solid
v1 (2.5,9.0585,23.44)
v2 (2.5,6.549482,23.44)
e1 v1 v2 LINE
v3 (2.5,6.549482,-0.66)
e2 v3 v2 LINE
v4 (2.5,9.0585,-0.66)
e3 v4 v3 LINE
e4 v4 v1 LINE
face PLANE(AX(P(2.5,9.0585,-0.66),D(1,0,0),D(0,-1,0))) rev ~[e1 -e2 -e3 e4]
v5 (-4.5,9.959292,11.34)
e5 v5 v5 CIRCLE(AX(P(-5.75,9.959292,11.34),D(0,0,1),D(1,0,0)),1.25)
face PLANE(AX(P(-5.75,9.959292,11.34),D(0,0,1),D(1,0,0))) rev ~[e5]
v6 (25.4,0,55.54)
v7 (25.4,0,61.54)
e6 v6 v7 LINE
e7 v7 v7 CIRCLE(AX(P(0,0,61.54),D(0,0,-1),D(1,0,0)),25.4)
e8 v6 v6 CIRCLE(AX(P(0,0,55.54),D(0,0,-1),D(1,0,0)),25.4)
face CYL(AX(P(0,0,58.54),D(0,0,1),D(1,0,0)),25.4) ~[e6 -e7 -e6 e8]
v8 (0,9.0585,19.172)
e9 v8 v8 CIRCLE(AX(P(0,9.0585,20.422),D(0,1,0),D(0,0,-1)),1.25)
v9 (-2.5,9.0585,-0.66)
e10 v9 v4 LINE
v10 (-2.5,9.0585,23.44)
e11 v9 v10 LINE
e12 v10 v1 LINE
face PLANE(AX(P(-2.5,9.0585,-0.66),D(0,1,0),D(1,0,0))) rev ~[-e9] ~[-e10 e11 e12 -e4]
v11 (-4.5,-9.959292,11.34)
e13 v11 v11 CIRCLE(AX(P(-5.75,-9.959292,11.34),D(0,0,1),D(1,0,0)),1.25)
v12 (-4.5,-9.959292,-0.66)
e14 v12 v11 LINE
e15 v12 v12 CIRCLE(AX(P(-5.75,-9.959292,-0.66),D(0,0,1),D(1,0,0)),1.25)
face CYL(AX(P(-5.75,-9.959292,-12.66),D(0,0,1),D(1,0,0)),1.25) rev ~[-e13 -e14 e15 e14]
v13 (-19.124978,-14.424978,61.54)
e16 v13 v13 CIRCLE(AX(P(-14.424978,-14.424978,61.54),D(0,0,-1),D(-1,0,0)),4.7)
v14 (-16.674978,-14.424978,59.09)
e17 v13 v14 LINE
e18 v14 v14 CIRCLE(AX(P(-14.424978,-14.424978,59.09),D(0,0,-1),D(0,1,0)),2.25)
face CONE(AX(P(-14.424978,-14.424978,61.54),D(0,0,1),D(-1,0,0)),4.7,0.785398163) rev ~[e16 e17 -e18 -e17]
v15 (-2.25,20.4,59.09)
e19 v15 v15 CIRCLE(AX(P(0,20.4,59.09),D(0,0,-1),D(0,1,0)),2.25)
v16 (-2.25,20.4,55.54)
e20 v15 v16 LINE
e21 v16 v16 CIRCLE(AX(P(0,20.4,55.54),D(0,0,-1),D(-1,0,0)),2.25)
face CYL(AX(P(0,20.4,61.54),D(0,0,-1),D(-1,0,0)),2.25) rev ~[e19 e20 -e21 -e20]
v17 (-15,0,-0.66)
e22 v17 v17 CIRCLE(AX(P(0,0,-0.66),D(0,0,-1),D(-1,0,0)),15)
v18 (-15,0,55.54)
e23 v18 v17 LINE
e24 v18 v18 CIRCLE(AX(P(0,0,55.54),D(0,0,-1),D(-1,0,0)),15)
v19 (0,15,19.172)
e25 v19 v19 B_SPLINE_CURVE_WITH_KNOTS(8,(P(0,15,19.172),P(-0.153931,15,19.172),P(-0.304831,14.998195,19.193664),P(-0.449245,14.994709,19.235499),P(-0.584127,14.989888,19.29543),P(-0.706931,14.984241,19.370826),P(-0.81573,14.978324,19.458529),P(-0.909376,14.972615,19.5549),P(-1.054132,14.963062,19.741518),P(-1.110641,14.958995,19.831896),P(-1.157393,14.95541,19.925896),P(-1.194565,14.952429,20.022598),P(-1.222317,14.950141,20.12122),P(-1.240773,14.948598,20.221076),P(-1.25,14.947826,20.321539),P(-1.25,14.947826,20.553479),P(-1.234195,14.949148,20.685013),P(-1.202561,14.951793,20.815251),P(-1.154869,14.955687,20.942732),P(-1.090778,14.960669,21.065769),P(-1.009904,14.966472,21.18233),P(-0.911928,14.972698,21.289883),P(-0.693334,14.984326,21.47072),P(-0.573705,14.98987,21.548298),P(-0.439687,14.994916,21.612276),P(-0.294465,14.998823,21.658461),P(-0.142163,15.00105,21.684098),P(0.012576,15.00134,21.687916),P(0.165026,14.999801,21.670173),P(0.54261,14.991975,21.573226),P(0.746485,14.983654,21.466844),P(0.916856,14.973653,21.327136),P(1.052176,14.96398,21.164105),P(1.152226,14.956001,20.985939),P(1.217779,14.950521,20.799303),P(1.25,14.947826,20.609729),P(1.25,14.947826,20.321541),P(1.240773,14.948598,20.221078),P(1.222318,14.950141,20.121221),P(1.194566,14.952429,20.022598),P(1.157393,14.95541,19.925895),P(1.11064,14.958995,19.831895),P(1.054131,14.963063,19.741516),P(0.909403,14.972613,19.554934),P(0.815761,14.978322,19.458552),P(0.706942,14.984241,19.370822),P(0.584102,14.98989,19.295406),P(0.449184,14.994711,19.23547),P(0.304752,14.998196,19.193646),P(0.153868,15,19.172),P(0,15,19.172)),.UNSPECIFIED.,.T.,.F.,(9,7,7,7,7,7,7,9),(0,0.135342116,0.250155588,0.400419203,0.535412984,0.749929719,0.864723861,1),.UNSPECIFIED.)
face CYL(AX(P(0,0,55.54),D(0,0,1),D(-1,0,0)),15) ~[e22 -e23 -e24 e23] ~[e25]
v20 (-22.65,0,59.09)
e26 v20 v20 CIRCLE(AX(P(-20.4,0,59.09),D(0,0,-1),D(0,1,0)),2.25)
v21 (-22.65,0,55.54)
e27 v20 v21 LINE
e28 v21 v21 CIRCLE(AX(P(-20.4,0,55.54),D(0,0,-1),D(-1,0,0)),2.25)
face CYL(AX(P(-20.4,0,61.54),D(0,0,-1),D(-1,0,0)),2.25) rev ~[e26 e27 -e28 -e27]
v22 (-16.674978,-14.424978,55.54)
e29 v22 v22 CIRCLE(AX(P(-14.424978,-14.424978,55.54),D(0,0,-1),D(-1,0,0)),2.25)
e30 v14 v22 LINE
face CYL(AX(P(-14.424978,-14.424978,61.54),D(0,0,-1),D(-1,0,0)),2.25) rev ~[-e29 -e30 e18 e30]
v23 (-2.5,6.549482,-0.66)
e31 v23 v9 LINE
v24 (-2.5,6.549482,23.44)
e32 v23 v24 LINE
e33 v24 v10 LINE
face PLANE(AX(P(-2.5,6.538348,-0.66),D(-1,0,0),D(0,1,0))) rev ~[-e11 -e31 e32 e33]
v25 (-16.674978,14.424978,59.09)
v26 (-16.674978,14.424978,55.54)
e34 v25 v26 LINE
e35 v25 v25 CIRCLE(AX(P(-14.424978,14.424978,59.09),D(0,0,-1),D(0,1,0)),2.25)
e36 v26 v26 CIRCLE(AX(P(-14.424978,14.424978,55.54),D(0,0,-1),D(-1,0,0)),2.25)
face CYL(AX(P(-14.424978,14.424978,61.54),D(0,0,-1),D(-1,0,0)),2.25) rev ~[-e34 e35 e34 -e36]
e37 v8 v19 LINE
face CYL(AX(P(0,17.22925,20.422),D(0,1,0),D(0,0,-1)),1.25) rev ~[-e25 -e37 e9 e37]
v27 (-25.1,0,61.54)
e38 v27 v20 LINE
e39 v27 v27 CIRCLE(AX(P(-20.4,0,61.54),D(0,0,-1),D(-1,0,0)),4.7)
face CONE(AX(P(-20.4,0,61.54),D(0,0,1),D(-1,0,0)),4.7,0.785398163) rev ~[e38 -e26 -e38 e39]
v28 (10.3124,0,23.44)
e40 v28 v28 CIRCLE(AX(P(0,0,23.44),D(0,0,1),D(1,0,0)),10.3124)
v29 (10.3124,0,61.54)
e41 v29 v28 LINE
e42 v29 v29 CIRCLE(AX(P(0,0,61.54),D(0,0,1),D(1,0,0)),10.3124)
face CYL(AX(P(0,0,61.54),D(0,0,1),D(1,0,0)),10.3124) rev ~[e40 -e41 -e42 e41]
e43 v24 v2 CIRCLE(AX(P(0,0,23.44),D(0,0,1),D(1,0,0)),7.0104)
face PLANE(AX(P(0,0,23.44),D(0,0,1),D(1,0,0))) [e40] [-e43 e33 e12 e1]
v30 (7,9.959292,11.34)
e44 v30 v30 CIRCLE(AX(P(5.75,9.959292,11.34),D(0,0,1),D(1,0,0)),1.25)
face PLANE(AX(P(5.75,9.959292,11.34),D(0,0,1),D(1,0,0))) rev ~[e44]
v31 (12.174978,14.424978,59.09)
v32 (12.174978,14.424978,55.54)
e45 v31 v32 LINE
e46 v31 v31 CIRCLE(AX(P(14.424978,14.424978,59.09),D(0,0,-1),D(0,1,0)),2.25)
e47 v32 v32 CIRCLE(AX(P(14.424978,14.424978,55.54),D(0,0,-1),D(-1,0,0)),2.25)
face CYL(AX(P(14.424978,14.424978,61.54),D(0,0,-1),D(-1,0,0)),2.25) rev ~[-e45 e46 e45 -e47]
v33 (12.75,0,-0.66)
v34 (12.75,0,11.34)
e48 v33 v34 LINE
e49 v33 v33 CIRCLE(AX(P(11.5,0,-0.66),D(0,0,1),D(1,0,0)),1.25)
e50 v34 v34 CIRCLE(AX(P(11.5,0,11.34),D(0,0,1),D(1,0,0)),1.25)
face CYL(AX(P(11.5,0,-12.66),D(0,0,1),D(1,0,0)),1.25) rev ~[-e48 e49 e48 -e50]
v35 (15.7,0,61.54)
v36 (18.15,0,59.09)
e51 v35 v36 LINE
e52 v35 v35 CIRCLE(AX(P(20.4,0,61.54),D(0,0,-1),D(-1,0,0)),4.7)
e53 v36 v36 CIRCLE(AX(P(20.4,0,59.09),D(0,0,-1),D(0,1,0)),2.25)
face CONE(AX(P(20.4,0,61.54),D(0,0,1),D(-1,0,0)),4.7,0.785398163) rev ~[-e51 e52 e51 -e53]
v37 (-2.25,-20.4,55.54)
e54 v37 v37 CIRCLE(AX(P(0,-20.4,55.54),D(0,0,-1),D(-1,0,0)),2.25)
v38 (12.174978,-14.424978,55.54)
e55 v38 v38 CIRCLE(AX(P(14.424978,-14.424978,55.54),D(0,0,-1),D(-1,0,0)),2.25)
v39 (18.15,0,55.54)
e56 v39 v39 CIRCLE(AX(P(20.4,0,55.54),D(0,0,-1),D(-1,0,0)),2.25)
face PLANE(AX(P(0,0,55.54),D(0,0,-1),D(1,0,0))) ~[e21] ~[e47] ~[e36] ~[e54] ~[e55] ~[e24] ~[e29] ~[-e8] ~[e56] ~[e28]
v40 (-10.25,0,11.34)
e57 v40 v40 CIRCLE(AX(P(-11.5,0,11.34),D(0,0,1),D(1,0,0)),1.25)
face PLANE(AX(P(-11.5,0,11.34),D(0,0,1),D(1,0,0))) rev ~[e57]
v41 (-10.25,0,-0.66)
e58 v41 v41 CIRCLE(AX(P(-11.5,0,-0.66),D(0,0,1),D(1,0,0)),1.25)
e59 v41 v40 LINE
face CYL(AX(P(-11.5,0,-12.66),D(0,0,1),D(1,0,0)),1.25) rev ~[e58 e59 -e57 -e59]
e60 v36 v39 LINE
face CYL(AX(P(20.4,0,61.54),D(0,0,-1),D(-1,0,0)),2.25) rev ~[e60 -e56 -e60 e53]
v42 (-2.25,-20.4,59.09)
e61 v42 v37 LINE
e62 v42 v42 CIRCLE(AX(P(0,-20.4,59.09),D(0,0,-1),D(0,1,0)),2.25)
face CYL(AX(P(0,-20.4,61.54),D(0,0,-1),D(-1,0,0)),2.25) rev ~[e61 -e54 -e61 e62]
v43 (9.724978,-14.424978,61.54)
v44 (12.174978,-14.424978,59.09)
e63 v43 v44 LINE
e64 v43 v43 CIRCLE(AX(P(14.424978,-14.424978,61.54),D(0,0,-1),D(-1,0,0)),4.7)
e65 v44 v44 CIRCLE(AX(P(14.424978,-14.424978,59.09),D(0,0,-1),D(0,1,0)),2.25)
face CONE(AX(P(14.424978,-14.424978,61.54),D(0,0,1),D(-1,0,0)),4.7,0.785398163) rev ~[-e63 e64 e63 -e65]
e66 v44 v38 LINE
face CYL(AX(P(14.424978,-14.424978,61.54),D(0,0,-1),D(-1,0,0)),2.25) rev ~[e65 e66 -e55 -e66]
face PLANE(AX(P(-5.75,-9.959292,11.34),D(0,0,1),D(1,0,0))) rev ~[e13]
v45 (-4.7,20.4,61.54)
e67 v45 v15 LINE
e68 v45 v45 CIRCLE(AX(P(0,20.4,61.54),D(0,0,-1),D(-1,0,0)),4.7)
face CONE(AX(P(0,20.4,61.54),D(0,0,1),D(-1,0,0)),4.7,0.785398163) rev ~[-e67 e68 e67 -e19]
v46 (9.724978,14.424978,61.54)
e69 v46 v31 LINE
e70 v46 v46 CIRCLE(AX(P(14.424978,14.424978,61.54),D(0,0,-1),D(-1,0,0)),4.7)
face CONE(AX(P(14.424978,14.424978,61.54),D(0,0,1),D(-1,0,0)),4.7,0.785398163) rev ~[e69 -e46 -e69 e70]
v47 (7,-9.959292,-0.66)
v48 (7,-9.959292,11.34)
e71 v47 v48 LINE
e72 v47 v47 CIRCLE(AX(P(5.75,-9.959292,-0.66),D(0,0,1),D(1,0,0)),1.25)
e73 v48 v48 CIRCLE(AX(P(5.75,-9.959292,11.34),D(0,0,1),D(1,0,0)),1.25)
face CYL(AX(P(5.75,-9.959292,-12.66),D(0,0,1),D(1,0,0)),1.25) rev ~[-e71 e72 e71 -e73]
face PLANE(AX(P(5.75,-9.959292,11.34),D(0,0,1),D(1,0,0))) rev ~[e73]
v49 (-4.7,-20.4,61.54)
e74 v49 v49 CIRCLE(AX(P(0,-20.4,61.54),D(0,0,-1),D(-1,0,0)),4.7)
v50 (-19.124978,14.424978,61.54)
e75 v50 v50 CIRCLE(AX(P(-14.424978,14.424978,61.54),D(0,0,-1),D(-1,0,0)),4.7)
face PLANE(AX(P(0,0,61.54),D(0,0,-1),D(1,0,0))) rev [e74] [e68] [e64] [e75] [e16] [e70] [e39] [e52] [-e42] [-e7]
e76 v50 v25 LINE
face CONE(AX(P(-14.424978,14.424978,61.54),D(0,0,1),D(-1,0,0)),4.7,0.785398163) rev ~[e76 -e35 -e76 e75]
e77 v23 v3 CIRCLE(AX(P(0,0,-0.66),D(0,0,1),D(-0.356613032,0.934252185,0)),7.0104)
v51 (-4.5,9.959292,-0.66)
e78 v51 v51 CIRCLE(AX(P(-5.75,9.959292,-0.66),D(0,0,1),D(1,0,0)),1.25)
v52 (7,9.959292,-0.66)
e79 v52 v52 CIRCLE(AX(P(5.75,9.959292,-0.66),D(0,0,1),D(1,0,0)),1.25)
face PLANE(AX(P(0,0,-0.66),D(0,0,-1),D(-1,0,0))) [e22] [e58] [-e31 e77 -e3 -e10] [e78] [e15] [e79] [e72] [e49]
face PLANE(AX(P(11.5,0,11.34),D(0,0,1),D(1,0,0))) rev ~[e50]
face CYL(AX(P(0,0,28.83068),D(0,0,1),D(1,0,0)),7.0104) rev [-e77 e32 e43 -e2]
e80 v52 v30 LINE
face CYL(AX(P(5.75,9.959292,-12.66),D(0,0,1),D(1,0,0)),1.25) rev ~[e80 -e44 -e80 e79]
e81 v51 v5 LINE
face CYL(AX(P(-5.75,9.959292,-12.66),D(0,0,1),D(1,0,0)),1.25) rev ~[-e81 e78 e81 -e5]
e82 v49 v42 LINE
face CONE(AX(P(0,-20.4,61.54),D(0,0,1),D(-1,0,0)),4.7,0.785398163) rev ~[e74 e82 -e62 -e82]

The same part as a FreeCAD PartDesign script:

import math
import FreeCAD as App
import Part
import Sketcher
from FreeCAD import Vector

doc = App.newDocument("Part")
body = doc.addObject("PartDesign::Body", "Body")

# Sketch on XZ plane
sketch1 = body.newObject("Sketcher::SketchObject", "Sketch")
sketch1.AttachmentSupport = (doc.getObject("XZ_Plane"), [""])
sketch1.MapMode = "FlatFace"
sketch1.addGeometry([
    Part.LineSegment(Vector(0, 61.54, 0), Vector(0, 55.54, 0)),
    Part.LineSegment(Vector(0, 55.54, 0), Vector(25.4, 55.54, 0)),
    Part.LineSegment(Vector(25.4, 55.54, 0), Vector(25.4, 61.54, 0)),
    Part.LineSegment(Vector(25.4, 61.54, 0), Vector(0, 61.54, 0)),
], False)
sketch1.addConstraint([
    Sketcher.Constraint("Coincident", 0, 2, 1, 1),
    Sketcher.Constraint("Coincident", 1, 2, 2, 1),
    Sketcher.Constraint("Coincident", 2, 2, 3, 1),
    Sketcher.Constraint("Coincident", 3, 2, 0, 1),
    Sketcher.Constraint("Vertical", 0),
    Sketcher.Constraint("Horizontal", 1),
    Sketcher.Constraint("Vertical", 2),
    Sketcher.Constraint("Horizontal", 3),
    Sketcher.Constraint("PointOnObject", 0, 2, -2),
    Sketcher.Constraint("DistanceY", 0, 2, 0, 1, 6.0),
    Sketcher.Constraint("DistanceX", 1, 1, 1, 2, 25.4),
    Sketcher.Constraint("DistanceY", -1, 1, 0, 2, 55.54),
])
revolution = body.newObject("PartDesign::Revolution", "Revolution")
revolution.Profile = sketch1
revolution.ReferenceAxis = (sketch1, ["V_Axis"])
revolution.Angle = 360

# Sketch on XY plane
sketch2 = body.newObject("Sketcher::SketchObject", "Sketch001")
sketch2.AttachmentSupport = (doc.getObject("XY_Plane"), [""])
sketch2.MapMode = "FlatFace"
sketch2.AttachmentOffset = App.Placement(Vector(0, 0, 55.54), App.Rotation())
sketch2.addGeometry(Part.Circle(Vector(0, 0, 0), Vector(0, 0, 1), 15), False)
sketch2.addConstraint([
    Sketcher.Constraint("Coincident", 0, 3, -1, 1),
    Sketcher.Constraint("Diameter", 0, 30.0),
])
pad1 = body.newObject("PartDesign::Pad", "Pad")
pad1.Profile = sketch2
pad1.Length = 56.2
pad1.Reversed = True

# Sketch on XY plane
sketch3 = body.newObject("Sketcher::SketchObject", "Sketch002")
sketch3.AttachmentSupport = (doc.getObject("XY_Plane"), [""])
sketch3.MapMode = "FlatFace"
sketch3.AttachmentOffset = App.Placement(Vector(0, 0, -0.66), App.Rotation())
sketch3.addGeometry([
    Part.LineSegment(Vector(-2.5, 9.0585, 0), Vector(2.5, 9.0585, 0)),
    Part.LineSegment(Vector(2.5, 9.0585, 0), Vector(2.5, 6.538348, 0)),
    Part.ArcOfCircle(Part.Circle(Vector(0, 0, 0), Vector(0, 0, 1), 7), math.radians(69.075168), math.radians(110.924832)),
    Part.LineSegment(Vector(-2.5, 6.538348, 0), Vector(-2.5, 9.0585, 0)),
], False)
sketch3.addConstraint([
    Sketcher.Constraint("Coincident", 0, 2, 1, 1),
    Sketcher.Constraint("Coincident", 1, 2, 2, 1),
    Sketcher.Constraint("Coincident", 2, 2, 3, 1),
    Sketcher.Constraint("Coincident", 3, 2, 0, 1),
    Sketcher.Constraint("Horizontal", 0),
    Sketcher.Constraint("Vertical", 1),
    Sketcher.Constraint("Vertical", 3),
    Sketcher.Constraint("Coincident", 2, 3, -1, 1),
    Sketcher.Constraint("Horizontal", 1, 2, 2, 2),
    Sketcher.Constraint("Radius", 2, 7.0),
    Sketcher.Constraint("DistanceX", 0, 1, 0, 2, 5.0),
    Sketcher.Constraint("DistanceY", 1, 2, 1, 1, 2.520151),
])
pocket1 = body.newObject("PartDesign::Pocket", "Pocket")
pocket1.Profile = sketch3
pocket1.Type = "ThroughAll"
pocket1.Reversed = True

# Sketch on XZ plane
sketch4 = body.newObject("Sketcher::SketchObject", "Sketch003")
sketch4.AttachmentSupport = (doc.getObject("XZ_Plane"), [""])
sketch4.MapMode = "FlatFace"
sketch4.addGeometry([
    Part.LineSegment(Vector(0, 61.54, 0), Vector(0, -3.878639, 0)),
    Part.LineSegment(Vector(0, -3.878639, 0), Vector(7.0104, -3.878639, 0)),
    Part.LineSegment(Vector(7.0104, -3.878639, 0), Vector(7.0104, 61.54, 0)),
    Part.LineSegment(Vector(7.0104, 61.54, 0), Vector(0, 61.54, 0)),
], False)
sketch4.addConstraint([
    Sketcher.Constraint("Coincident", 0, 2, 1, 1),
    Sketcher.Constraint("Coincident", 1, 2, 2, 1),
    Sketcher.Constraint("Coincident", 2, 2, 3, 1),
    Sketcher.Constraint("Coincident", 3, 2, 0, 1),
    Sketcher.Constraint("Vertical", 0),
    Sketcher.Constraint("Horizontal", 1),
    Sketcher.Constraint("Vertical", 2),
    Sketcher.Constraint("Horizontal", 3),
    Sketcher.Constraint("PointOnObject", 0, 2, -2),
    Sketcher.Constraint("DistanceY", -1, 1, 2, 2, 61.54),
    Sketcher.Constraint("DistanceX", 1, 1, 1, 2, 7.0104),
    Sketcher.Constraint("DistanceY", 0, 2, 0, 1, 65.418639),
])
groove = body.newObject("PartDesign::Groove", "Groove")
groove.Profile = sketch4
groove.ReferenceAxis = (sketch4, ["V_Axis"])
groove.Angle = 360

# Sketch on XY plane
sketch5 = body.newObject("Sketcher::SketchObject", "Sketch004")
sketch5.AttachmentSupport = (doc.getObject("XY_Plane"), [""])
sketch5.MapMode = "FlatFace"
sketch5.AttachmentOffset = App.Placement(Vector(0, 0, -0.66), App.Rotation())
sketch5.addGeometry([
    Part.Circle(Vector(11.5, 0, 0), Vector(0, 0, 1), 1.25),  # 0
    Part.Circle(Vector(5.75, -9.959292, 0), Vector(0, 0, 1), 1.25),  # 1
    Part.Circle(Vector(-5.75, -9.959292, 0), Vector(0, 0, 1), 1.25),  # 2
    Part.Circle(Vector(-11.5, 0, 0), Vector(0, 0, 1), 1.25),  # 3
    Part.Circle(Vector(-5.75, 9.959292, 0), Vector(0, 0, 1), 1.25),  # 4
    Part.Circle(Vector(5.75, 9.959292, 0), Vector(0, 0, 1), 1.25),  # 5
], False)
sketch5.addConstraint([
    Sketcher.Constraint("Equal", 0, 1),
    Sketcher.Constraint("Equal", 1, 2),
    Sketcher.Constraint("Equal", 2, 3),
    Sketcher.Constraint("Equal", 3, 4),
    Sketcher.Constraint("Equal", 4, 5),
    Sketcher.Constraint("Symmetric", 0, 3, 3, 3, -1, 1),
    Sketcher.Constraint("Symmetric", 1, 3, 4, 3, -1, 1),
    Sketcher.Constraint("Symmetric", 2, 3, 5, 3, -1, 1),
    Sketcher.Constraint("Symmetric", 1, 3, 2, 3, -2),
    Sketcher.Constraint("PointOnObject", 0, 3, -1),
    Sketcher.Constraint("Diameter", 0, 2.5),
    Sketcher.Constraint("DistanceX", 3, 3, 0, 3, 23.0),
    Sketcher.Constraint("DistanceX", 2, 3, 1, 3, 11.5),
    Sketcher.Constraint("DistanceY", 1, 3, -1, 1, 9.959292),
])
doc.recompute()
hole = body.newObject("PartDesign::Hole", "Hole")
hole.Profile = sketch5
hole.ThreadType = "None"
hole.Diameter = 2.5
hole.DepthType = "Dimension"
hole.Depth = 12
hole.DrillPoint = "Flat"
hole.Reversed = True

# Sketch on YZ plane
sketch6 = body.newObject("Sketcher::SketchObject", "Sketch005")
sketch6.AttachmentSupport = (doc.getObject("YZ_Plane"), [""])
sketch6.MapMode = "FlatFace"
sketch6.addGeometry([
    Part.LineSegment(Vector(25.4, 20.422, 0), Vector(9.0585, 20.422, 0)),
    Part.LineSegment(Vector(9.0585, 20.422, 0), Vector(9.0585, 19.172, 0)),
    Part.LineSegment(Vector(9.0585, 19.172, 0), Vector(25.4, 19.172, 0)),
    Part.LineSegment(Vector(25.4, 19.172, 0), Vector(25.4, 20.422, 0)),
], False)
sketch6.addGeometry(Part.LineSegment(Vector(9.0585, 20.422, 0), Vector(25.4, 20.422, 0)), True)  # axis
sketch6.addConstraint([
    Sketcher.Constraint("Coincident", 0, 2, 1, 1),
    Sketcher.Constraint("Coincident", 1, 2, 2, 1),
    Sketcher.Constraint("Coincident", 2, 2, 3, 1),
    Sketcher.Constraint("Coincident", 3, 2, 0, 1),
    Sketcher.Constraint("Horizontal", 0),
    Sketcher.Constraint("Vertical", 1),
    Sketcher.Constraint("Horizontal", 2),
    Sketcher.Constraint("Vertical", 3),
    Sketcher.Constraint("Horizontal", 4),
    Sketcher.Constraint("Coincident", 4, 1, 0, 2),
    Sketcher.Constraint("Vertical", 2, 2, 4, 2),
    Sketcher.Constraint("DistanceY", 1, 2, 1, 1, 1.25),
    Sketcher.Constraint("DistanceX", -1, 1, 2, 2, 25.4),
    Sketcher.Constraint("DistanceX", 0, 2, 0, 1, 16.3415),
    Sketcher.Constraint("DistanceY", -1, 1, 0, 2, 20.422),
])
groove2 = body.newObject("PartDesign::Groove", "Groove001")
groove2.Profile = sketch6
groove2.ReferenceAxis = (sketch6, ["Axis0"])
groove2.Angle = 360

# Sketch on XY plane
sketch7 = body.newObject("Sketcher::SketchObject", "Sketch006")
sketch7.AttachmentSupport = (doc.getObject("XY_Plane"), [""])
sketch7.MapMode = "FlatFace"
sketch7.AttachmentOffset = App.Placement(Vector(0, 0, 61.54), App.Rotation())
sketch7.addGeometry([
    Part.Circle(Vector(0, 20.4, 0), Vector(0, 0, 1), 2.25),  # 0
    Part.Circle(Vector(14.424978, 14.424978, 0), Vector(0, 0, 1), 2.25),  # 1
    Part.Circle(Vector(20.4, 0, 0), Vector(0, 0, 1), 2.25),  # 2
    Part.Circle(Vector(14.424978, -14.424978, 0), Vector(0, 0, 1), 2.25),  # 3
    Part.Circle(Vector(0, -20.4, 0), Vector(0, 0, 1), 2.25),  # 4
    Part.Circle(Vector(-14.424978, -14.424978, 0), Vector(0, 0, 1), 2.25),  # 5
    Part.Circle(Vector(-20.4, 0, 0), Vector(0, 0, 1), 2.25),  # 6
    Part.Circle(Vector(-14.424978, 14.424978, 0), Vector(0, 0, 1), 2.25),  # 7
], False)
sketch7.addConstraint([
    Sketcher.Constraint("Equal", 0, 1),
    Sketcher.Constraint("Equal", 1, 2),
    Sketcher.Constraint("Equal", 2, 3),
    Sketcher.Constraint("Equal", 3, 4),
    Sketcher.Constraint("Equal", 4, 5),
    Sketcher.Constraint("Equal", 5, 6),
    Sketcher.Constraint("Equal", 6, 7),
    Sketcher.Constraint("Symmetric", 0, 3, 4, 3, -1, 1),
    Sketcher.Constraint("Symmetric", 1, 3, 5, 3, -1, 1),
    Sketcher.Constraint("Symmetric", 2, 3, 6, 3, -1, 1),
    Sketcher.Constraint("Symmetric", 3, 3, 7, 3, -1, 1),
    Sketcher.Constraint("Symmetric", 3, 3, 5, 3, -2),
    Sketcher.Constraint("PointOnObject", 0, 3, -2),
    Sketcher.Constraint("PointOnObject", 2, 3, -1),
    Sketcher.Constraint("Diameter", 0, 4.5),
    Sketcher.Constraint("DistanceY", -1, 1, 0, 3, 20.4),
    Sketcher.Constraint("DistanceX", -1, 1, 2, 3, 20.4),
    Sketcher.Constraint("DistanceX", -1, 1, 1, 3, 14.424978),
    Sketcher.Constraint("DistanceY", -1, 1, 1, 3, 14.424978),
])
doc.recompute()
hole2 = body.newObject("PartDesign::Hole", "Hole001")
hole2.Profile = sketch7
hole2.ThreadType = "None"
hole2.Diameter = 4.5
hole2.DepthType = "Dimension"
hole2.Depth = 62.2
hole2.DrillPoint = "Flat"
hole2.HoleCutType = "Countersink"
hole2.HoleCutDiameter = 9.4
hole2.HoleCutCountersinkAngle = 90

# Sketch on XY plane
sketch8 = body.newObject("Sketcher::SketchObject", "Sketch007")
sketch8.AttachmentSupport = (doc.getObject("XY_Plane"), [""])
sketch8.MapMode = "FlatFace"
sketch8.AttachmentOffset = App.Placement(Vector(0, 0, 61.54), App.Rotation())
sketch8.addGeometry(Part.Circle(Vector(0, 0, 0), Vector(0, 0, 1), 10.3124), False)
sketch8.addConstraint([
    Sketcher.Constraint("Coincident", 0, 3, -1, 1),
    Sketcher.Constraint("Diameter", 0, 20.6248),
])
pocket2 = body.newObject("PartDesign::Pocket", "Pocket001")
pocket2.Profile = sketch8
pocket2.Length = 38.1

doc.recompute()
